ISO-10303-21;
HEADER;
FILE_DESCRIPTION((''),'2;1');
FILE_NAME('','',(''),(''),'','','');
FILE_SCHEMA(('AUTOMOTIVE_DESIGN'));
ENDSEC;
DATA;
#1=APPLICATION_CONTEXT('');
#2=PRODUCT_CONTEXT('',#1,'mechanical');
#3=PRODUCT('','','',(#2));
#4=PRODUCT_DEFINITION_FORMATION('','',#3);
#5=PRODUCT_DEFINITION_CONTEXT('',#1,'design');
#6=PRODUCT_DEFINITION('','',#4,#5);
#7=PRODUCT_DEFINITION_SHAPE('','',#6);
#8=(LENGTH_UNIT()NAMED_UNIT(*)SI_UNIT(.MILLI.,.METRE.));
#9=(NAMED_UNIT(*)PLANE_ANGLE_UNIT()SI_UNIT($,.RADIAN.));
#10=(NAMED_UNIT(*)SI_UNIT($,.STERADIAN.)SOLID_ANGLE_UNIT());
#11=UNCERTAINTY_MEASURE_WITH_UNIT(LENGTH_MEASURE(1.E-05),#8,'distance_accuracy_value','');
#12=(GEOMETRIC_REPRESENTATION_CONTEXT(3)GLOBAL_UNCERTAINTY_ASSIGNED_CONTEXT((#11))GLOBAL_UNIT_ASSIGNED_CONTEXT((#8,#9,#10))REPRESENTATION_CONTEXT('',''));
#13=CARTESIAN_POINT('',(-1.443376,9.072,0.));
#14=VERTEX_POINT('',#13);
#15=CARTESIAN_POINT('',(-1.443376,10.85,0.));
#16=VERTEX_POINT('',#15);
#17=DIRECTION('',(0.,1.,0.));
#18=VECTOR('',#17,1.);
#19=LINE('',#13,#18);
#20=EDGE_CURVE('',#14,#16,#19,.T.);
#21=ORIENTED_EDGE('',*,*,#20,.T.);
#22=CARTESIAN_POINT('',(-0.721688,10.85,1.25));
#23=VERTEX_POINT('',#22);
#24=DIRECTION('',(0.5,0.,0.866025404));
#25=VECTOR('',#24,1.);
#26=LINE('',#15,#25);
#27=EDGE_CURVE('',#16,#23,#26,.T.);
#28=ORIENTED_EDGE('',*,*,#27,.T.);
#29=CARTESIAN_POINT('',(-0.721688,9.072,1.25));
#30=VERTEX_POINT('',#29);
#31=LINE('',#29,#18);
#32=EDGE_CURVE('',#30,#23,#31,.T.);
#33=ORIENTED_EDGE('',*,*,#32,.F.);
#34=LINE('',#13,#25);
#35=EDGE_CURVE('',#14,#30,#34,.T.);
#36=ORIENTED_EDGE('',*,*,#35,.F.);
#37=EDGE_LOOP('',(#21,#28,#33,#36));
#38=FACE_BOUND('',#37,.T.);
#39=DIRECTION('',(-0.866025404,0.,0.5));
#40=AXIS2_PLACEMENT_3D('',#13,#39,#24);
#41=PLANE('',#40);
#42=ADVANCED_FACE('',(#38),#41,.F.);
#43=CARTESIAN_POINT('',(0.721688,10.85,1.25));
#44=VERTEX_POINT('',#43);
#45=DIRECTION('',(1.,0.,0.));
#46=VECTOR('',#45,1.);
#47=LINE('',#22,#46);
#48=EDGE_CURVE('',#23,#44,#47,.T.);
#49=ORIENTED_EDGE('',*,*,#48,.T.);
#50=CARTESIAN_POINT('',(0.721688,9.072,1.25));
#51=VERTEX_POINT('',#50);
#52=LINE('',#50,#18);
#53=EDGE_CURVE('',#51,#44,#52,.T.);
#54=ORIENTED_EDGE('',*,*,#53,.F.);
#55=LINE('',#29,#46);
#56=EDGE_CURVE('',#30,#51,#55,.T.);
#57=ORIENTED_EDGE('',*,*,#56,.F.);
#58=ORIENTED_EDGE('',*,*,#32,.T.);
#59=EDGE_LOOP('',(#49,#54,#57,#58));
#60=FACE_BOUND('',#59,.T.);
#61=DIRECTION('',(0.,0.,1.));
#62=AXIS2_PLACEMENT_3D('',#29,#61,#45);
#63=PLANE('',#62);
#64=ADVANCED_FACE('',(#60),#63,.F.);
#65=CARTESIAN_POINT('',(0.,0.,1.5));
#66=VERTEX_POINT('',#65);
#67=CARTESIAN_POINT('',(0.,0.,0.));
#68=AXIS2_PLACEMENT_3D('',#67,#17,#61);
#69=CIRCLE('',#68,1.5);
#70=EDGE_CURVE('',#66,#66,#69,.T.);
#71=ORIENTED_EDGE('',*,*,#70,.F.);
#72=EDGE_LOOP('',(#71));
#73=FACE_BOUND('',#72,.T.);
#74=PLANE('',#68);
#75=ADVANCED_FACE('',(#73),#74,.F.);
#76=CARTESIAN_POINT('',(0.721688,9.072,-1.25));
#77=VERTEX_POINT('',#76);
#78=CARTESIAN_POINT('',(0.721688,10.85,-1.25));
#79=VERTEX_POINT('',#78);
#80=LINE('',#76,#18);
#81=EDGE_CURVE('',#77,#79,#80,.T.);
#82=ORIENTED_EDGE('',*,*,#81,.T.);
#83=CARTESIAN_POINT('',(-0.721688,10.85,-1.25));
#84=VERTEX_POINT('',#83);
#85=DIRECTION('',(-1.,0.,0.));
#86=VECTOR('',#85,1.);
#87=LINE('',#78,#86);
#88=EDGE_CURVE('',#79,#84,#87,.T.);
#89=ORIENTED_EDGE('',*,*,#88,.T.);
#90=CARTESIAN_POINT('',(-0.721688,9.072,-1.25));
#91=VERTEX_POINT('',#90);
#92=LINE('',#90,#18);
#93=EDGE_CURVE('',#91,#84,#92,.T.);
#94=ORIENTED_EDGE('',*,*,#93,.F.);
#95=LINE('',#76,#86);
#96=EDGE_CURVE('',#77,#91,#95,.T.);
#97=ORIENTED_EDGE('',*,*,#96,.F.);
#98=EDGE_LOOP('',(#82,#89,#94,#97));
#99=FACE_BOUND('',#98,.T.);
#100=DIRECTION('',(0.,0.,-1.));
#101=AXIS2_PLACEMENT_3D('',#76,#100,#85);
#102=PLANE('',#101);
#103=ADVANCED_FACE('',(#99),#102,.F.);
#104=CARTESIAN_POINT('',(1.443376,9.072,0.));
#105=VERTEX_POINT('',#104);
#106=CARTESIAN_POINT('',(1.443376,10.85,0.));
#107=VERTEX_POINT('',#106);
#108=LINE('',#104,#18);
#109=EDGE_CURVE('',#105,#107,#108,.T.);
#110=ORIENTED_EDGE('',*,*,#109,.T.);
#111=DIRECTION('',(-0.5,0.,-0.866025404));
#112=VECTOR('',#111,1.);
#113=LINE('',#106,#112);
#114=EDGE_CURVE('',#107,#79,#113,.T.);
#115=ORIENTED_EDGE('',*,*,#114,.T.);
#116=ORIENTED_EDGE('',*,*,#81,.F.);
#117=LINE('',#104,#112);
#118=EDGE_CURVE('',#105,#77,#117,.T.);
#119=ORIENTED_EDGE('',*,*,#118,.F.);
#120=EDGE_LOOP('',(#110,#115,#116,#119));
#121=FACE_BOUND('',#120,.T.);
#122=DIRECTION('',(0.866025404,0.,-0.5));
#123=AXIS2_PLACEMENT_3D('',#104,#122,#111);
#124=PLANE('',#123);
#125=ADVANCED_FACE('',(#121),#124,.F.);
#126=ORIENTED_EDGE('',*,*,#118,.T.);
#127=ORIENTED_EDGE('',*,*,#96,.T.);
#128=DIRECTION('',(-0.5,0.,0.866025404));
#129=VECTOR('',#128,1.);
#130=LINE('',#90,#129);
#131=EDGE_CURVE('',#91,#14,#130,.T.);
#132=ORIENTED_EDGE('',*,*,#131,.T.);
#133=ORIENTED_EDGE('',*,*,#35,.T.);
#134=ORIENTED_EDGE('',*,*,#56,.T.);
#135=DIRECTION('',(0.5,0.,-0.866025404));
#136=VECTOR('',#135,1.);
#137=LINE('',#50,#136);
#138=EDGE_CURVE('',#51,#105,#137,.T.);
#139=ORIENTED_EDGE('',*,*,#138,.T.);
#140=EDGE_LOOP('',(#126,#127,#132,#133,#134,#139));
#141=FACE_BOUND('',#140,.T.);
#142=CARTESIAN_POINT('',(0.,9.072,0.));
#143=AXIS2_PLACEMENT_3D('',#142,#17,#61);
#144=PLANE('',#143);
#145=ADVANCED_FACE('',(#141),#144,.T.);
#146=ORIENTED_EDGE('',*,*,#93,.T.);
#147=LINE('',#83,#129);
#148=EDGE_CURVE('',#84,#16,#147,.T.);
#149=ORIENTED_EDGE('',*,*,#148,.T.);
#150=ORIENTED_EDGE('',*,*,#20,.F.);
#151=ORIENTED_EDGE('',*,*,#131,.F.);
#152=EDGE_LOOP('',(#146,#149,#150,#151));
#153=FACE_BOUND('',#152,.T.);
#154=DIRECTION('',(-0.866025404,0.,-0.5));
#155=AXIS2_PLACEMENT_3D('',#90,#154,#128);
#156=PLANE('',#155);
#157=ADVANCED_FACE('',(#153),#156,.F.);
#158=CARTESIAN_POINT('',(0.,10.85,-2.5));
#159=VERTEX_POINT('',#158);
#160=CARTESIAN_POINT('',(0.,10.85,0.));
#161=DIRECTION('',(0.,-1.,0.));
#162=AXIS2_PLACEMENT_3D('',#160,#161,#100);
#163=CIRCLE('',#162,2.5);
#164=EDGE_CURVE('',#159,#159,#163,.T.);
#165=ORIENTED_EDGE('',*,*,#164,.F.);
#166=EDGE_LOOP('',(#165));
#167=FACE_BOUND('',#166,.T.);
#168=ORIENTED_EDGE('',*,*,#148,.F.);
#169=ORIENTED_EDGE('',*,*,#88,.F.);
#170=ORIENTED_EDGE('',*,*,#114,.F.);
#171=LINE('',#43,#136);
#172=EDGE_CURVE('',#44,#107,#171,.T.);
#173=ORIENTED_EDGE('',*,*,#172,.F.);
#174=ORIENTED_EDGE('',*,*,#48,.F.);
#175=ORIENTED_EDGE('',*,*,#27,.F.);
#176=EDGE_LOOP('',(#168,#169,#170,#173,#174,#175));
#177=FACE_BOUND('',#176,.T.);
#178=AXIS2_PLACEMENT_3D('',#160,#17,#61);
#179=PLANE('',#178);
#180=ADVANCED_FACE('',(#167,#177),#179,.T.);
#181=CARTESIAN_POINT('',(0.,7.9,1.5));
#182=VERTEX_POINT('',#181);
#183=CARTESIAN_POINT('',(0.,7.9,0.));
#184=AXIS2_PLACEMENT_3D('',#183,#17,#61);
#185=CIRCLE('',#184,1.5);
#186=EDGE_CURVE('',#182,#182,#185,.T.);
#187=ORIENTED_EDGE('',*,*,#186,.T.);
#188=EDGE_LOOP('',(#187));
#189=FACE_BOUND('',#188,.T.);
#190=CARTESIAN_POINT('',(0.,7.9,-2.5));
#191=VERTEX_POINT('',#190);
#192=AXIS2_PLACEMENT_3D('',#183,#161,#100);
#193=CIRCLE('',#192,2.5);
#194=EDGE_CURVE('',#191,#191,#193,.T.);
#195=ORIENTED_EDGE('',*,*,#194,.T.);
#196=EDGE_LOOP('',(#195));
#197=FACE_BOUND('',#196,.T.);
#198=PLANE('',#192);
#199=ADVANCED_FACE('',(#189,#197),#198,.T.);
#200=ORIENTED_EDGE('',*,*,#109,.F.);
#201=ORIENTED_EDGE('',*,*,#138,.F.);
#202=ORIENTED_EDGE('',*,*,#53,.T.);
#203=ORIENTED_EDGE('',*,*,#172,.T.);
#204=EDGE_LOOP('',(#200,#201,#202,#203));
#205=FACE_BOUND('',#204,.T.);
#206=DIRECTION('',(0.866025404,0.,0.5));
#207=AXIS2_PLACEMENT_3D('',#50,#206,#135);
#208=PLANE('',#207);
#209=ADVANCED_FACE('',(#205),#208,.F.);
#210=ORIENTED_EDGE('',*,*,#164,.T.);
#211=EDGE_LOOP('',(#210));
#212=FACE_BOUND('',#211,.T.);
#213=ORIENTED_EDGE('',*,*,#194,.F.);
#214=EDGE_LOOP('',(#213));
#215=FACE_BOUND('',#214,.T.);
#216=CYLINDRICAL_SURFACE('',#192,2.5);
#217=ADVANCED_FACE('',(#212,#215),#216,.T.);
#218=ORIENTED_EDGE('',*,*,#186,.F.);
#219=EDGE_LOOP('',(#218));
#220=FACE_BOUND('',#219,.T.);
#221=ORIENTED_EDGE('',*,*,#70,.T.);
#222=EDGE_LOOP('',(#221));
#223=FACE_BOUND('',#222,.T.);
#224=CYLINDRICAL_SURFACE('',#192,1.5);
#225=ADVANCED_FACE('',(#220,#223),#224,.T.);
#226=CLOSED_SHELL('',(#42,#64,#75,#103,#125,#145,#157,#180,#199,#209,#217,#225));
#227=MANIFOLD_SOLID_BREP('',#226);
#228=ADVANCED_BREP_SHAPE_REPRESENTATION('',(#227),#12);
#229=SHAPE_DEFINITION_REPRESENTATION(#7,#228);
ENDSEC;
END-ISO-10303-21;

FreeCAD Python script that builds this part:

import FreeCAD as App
import Part
import Sketcher
from FreeCAD import Vector
Q = App.Units.Quantity


def add_polygon(sketch, points):
    """Adds a closed chain of lines whose ends are joined by coincident constraints."""
    first, n = sketch.GeometryCount, len(points)
    for a, b in zip(points, points[1:] + points[:1]):
        sketch.addGeometry(Part.LineSegment(App.Vector(*a, 0), App.Vector(*b, 0)), False)
    for i in range(n):
        sketch.addConstraint(Sketcher.Constraint("Coincident", first + i, 2, first + (i + 1) % n, 1))

doc = App.newDocument("Part")
params = doc.addObject("Spreadsheet::Sheet", "Params")
for row, (alias, value) in enumerate([
    ("sketch1_diameter", "3 mm"),
    ("pad1_length", "7.9 mm"),
    ("sketch2_width", "2.5 mm"),
    ("sketch2_height", "2.95 mm"),
    ("revolution_angle", "360 deg"),
    ("pocket1_length", "1.778 mm"),
], start=1):
    params.set(f"A{row}", alias)
    params.set(f"B{row}", "=" + value)
    params.setAlias(f"B{row}", alias)

body = doc.addObject("PartDesign::Body", "Body")

# Sketch on XZ plane
sketch1 = body.newObject("Sketcher::SketchObject", "Sketch")
sketch1.AttachmentSupport = (doc.getObject("XZ_Plane"), [""])
sketch1.MapMode = "FlatFace"
sketch1.addGeometry(Part.Circle(Vector(0, 0, 0), Vector(0, 0, 1), 1.5), False)
sketch1.addConstraint(Sketcher.Constraint("Coincident", 0, 3, -1, 1))
sketch1.addConstraint(Sketcher.Constraint("Diameter", 0, 3.0))
sketch1.setExpression("Constraints[1]", "Params.sketch1_diameter")
pad1 = body.newObject("PartDesign::Pad", "Pad")
pad1.Profile = sketch1
pad1.setExpression("Length", "Params.pad1_length")
pad1.Reversed = True

# Sketch on XY plane
sketch2 = body.newObject("Sketcher::SketchObject", "Sketch001")
sketch2.AttachmentSupport = (doc.getObject("XY_Plane"), [""])
sketch2.MapMode = "FlatFace"
add_polygon(sketch2, [(0, 10.8), (0, 7.9), (2.5, 7.9), (2.5, 10.8)])  # lines 0-3
sketch2.addConstraint(Sketcher.Constraint("Vertical", 0))
sketch2.addConstraint(Sketcher.Constraint("Horizontal", 1))
sketch2.addConstraint(Sketcher.Constraint("Vertical", 2))
sketch2.addConstraint(Sketcher.Constraint("Horizontal", 3))
sketch2.addConstraint(Sketcher.Constraint("PointOnObject", 0, 2, -2))
sketch2.addConstraint(Sketcher.Constraint("DistanceX", 1, 1, 1, 2, 2.5))
sketch2.addConstraint(Sketcher.Constraint("DistanceY", 0, 2, 0, 1, 2.95))
sketch2.addConstraint(Sketcher.Constraint("DistanceY", -1, 1, 0, 2, 7.9))
sketch2.setExpression("Constraints[9]", "Params.sketch2_width")
sketch2.setExpression("Constraints[10]", "Params.sketch2_height")
revolution = body.newObject("PartDesign::Revolution", "Revolution")
revolution.Profile = sketch2
revolution.ReferenceAxis = (sketch2, ["V_Axis"])
revolution.setExpression("Angle", "Params.revolution_angle")

# Sketch on XZ plane
sketch3 = body.newObject("Sketcher::SketchObject", "Sketch002")
sketch3.AttachmentSupport = (doc.getObject("XZ_Plane"), [""])
sketch3.MapMode = "FlatFace"
sketch3.AttachmentOffset = App.Placement(Vector(0, 0, -10.85), App.Rotation())
add_polygon(sketch3, [(1.4, 0), (0.7, -1.2), (-0.7, -1.2), (-1.4, 0), (-0.7, 1.2), (0.7, 1.2)])  # lines 0-5
sketch3.addConstraint(Sketcher.Constraint("Horizontal", 1))
sketch3.addConstraint(Sketcher.Constraint("Horizontal", 4))
sketch3.addConstraint(Sketcher.Constraint("Symmetric", 0, 2, 3, 2, -1, 1))
sketch3.addConstraint(Sketcher.Constraint("Symmetric", 2, 2, 5, 2, -1, 1))
sketch3.addConstraint(Sketcher.Constraint("PointOnObject", 2, 2, -1))
sketch3.addConstraint(Sketcher.Constraint("Parallel", 2, 5))
sketch3.addConstraint(Sketcher.Constraint("Vertical", 1, 2, 3, 2))
sketch3.addConstraint(Sketcher.Constraint("Angle", 0, Q("-120 deg")))
sketch3.addConstraint(Sketcher.Constraint("DistanceY", 1, 2, 3, 2, 2.5))
sketch3.addConstraint(Sketcher.Constraint("DistanceX", 1, 2, 1, 1, 1.443376))
pocket1 = body.newObject("PartDesign::Pocket", "Pocket")
pocket1.Profile = sketch3
pocket1.setExpression("Length", "Params.pocket1_length")
pocket1.Reversed = True

doc.recompute()
